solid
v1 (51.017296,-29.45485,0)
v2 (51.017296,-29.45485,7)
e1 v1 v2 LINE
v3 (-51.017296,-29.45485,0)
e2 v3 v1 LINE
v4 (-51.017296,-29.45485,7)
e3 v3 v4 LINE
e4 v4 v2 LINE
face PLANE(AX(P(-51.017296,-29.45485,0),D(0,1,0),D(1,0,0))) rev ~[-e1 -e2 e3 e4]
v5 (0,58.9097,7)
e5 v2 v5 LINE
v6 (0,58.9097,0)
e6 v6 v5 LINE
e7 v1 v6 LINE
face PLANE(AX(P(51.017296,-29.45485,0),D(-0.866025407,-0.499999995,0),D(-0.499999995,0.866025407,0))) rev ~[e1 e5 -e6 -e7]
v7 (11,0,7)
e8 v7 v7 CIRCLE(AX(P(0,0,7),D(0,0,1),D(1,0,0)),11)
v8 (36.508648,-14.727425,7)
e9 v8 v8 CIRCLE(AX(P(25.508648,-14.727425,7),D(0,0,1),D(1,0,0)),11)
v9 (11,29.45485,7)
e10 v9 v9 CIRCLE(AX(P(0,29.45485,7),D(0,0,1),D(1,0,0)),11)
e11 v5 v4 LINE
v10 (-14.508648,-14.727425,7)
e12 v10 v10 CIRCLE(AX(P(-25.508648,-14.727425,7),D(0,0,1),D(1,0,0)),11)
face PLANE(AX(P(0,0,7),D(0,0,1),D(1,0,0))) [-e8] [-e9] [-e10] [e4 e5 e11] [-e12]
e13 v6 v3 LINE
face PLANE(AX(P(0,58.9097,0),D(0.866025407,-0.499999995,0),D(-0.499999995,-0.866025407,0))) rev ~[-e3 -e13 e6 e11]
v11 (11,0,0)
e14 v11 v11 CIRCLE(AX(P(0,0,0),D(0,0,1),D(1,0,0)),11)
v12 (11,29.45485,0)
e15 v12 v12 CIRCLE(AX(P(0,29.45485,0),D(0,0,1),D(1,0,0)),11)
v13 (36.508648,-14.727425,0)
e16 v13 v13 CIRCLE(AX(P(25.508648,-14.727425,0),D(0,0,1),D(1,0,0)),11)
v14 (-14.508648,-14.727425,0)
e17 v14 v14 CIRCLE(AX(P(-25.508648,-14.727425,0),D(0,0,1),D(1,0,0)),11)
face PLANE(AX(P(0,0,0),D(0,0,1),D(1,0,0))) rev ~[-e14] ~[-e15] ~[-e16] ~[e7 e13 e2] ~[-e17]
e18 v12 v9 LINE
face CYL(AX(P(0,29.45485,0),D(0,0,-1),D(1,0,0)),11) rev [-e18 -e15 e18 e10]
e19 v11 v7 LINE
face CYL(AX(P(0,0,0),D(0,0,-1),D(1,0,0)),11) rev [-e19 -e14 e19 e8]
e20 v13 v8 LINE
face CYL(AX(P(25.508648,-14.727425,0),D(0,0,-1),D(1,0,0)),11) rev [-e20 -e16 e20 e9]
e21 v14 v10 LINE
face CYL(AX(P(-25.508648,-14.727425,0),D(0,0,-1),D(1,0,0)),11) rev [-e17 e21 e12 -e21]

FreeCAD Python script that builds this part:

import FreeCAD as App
import Part
import Sketcher
Q = App.Units.Quantity


def add_polygon(sketch, points):
    """Adds a closed chain of lines whose ends are joined by coincident constraints."""
    first, n = sketch.GeometryCount, len(points)
    for a, b in zip(points, points[1:] + points[:1]):
        sketch.addGeometry(Part.LineSegment(App.Vector(*a, 0), App.Vector(*b, 0)), False)
    for i in range(n):
        sketch.addConstraint(Sketcher.Constraint("Coincident", first + i, 2, first + (i + 1) % n, 1))

doc = App.newDocument("Part")
body = doc.addObject("PartDesign::Body", "Body")

# Sketch on XY plane
sketch1 = doc.addObject("Sketcher::SketchObject", "Sketch")
body.addObject(sketch1)
sketch1.AttachmentSupport = (doc.XY_Plane, [""])
sketch1.MapMode = "FlatFace"
add_polygon(sketch1, [(-51, -29), (51, -29), (0, 59)])  # lines 0-2
sketch1.addGeometry(Part.Circle(App.Vector(-26, -15, 0), App.Vector(0, 0, 1), 11), False)  # 3
sketch1.addGeometry(Part.Circle(App.Vector(26, -15, 0), App.Vector(0, 0, 1), 11), False)  # 4
sketch1.addGeometry(Part.Circle(App.Vector(0, 0, 0), App.Vector(0, 0, 1), 11), False)  # 5
sketch1.addGeometry(Part.Circle(App.Vector(0, 29, 0), App.Vector(0, 0, 1), 11), False)  # 6
sketch1.addConstraint([
    Sketcher.Constraint("Horizontal", 0),
    Sketcher.Constraint("Coincident", 5, 3, -1, 1),
    Sketcher.Constraint("Equal", 3, 4),
    Sketcher.Constraint("Equal", 4, 5),
    Sketcher.Constraint("Equal", 5, 6),
    Sketcher.Constraint("Symmetric", 3, 3, 4, 3, -2),
    Sketcher.Constraint("PointOnObject", 6, 3, -2),
    Sketcher.Constraint("PointOnObject", 1, 2, -2),
    Sketcher.Constraint("Equal", 1, 2),
    Sketcher.Constraint("Diameter", 3, 22.0),
    Sketcher.Constraint("Angle", 1, Q("120 deg")),
    Sketcher.Constraint("DistanceY", -1, 1, 1, 2, 58.9097),
    Sketcher.Constraint("DistanceY", 0, 2, 6, 3, 58.9097),
    Sketcher.Constraint("DistanceX", 0, 1, 0, 2, 102.034592),
    Sketcher.Constraint("DistanceX", 3, 3, -1, 1, 25.508648),
    Sketcher.Constraint("DistanceY", 3, 3, -1, 1, 14.727425),
])
pad1 = doc.addObject("PartDesign::Pad", "Pad")
body.addObject(pad1)
pad1.Profile = sketch1
pad1.Length = 7

doc.recompute()
